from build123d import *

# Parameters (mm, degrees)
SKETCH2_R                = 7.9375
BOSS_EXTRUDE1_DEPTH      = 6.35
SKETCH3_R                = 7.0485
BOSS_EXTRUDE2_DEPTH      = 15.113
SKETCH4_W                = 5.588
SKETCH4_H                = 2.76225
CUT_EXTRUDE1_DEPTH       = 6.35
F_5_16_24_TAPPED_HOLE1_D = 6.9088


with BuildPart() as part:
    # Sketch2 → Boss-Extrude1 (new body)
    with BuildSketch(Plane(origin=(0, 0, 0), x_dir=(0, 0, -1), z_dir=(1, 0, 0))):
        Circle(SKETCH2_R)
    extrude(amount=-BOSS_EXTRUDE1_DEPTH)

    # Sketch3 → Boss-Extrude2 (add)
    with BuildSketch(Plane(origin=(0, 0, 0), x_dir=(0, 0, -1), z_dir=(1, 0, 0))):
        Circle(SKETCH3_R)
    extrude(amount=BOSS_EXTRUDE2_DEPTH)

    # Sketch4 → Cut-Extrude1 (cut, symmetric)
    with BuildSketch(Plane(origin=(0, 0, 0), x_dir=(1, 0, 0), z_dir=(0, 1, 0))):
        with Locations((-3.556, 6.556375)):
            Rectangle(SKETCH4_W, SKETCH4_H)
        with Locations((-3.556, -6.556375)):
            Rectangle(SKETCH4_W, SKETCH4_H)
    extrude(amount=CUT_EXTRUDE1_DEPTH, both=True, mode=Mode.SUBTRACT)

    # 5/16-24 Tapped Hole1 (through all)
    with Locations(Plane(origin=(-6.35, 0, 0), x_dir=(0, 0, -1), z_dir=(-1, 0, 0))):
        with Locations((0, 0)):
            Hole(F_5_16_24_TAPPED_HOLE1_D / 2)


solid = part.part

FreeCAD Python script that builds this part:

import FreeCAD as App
import Part
import Sketcher
Q = App.Units.Quantity

doc = App.newDocument("Part")
body = doc.addObject("PartDesign::Body", "Body")

sketch1 = doc.addObject("Sketcher::SketchObject", "Sketch")
body.addObject(sketch1)
sketch1.AttachmentSupport = (doc.YZ_Plane, [""])
sketch1.MapMode = "FlatFace"
sketch1.addGeometry(Part.Circle(App.Vector(0, 0, 0), App.Vector(0, 0, 1), 7.9375), False)
sketch1.addConstraint([
    Sketcher.Constraint("Coincident", 0, 3, -1, 1),
    Sketcher.Constraint("Diameter", 0, Q("0.625 in")),
])
pad1 = doc.addObject("PartDesign::Pad", "Pad")
body.addObject(pad1)
pad1.Profile = sketch1
pad1.Length = Q("0.25 in")
pad1.Reversed = True

sketch2 = doc.addObject("Sketcher::SketchObject", "Sketch001")
body.addObject(sketch2)
sketch2.AttachmentSupport = (doc.YZ_Plane, [""])
sketch2.MapMode = "FlatFace"
sketch2.addGeometry(Part.Circle(App.Vector(0, 0, 0), App.Vector(0, 0, 1), 7.0485), False)
sketch2.addConstraint([
    Sketcher.Constraint("Coincident", 0, 3, -1, 1),
    Sketcher.Constraint("Diameter", 0, Q("0.555 in")),
])
pad2 = doc.addObject("PartDesign::Pad", "Pad001")
body.addObject(pad2)
pad2.Profile = sketch2
pad2.Length = Q("0.595 in")

sketch3 = doc.addObject("Sketcher::SketchObject", "Sketch002")
body.addObject(sketch3)
sketch3.AttachmentSupport = (doc.XZ_Plane, [""])
sketch3.MapMode = "FlatFace"
sketch3.addGeometry([
    Part.LineSegment(App.Vector(-6.35, -7.9375, 0), App.Vector(-6.35, -5.17525, 0)),
    Part.LineSegment(App.Vector(-6.35, -5.17525, 0), App.Vector(-0.762, -5.17525, 0)),
    Part.LineSegment(App.Vector(-0.762, -5.17525, 0), App.Vector(-0.762, -7.9375, 0)),
    Part.LineSegment(App.Vector(-0.762, -7.9375, 0), App.Vector(-6.35, -7.9375, 0)),
    Part.LineSegment(App.Vector(-6.35, 5.17525, 0), App.Vector(-6.35, 7.9375, 0)),
    Part.LineSegment(App.Vector(-6.35, 7.9375, 0), App.Vector(-0.762, 7.9375, 0)),
    Part.LineSegment(App.Vector(-0.762, 7.9375, 0), App.Vector(-0.762, 5.17525, 0)),
    Part.LineSegment(App.Vector(-0.762, 5.17525, 0), App.Vector(-6.35, 5.17525, 0)),
], False)
sketch3.addConstraint([
    Sketcher.Constraint("Coincident", 0, 2, 1, 1),
    Sketcher.Constraint("Coincident", 1, 2, 2, 1),
    Sketcher.Constraint("Coincident", 2, 2, 3, 1),
    Sketcher.Constraint("Coincident", 3, 2, 0, 1),
    Sketcher.Constraint("Coincident", 4, 2, 5, 1),
    Sketcher.Constraint("Coincident", 5, 2, 6, 1),
    Sketcher.Constraint("Coincident", 6, 2, 7, 1),
    Sketcher.Constraint("Coincident", 7, 2, 4, 1),
    Sketcher.Constraint("Vertical", 0),
    Sketcher.Constraint("Horizontal", 1),
    Sketcher.Constraint("Vertical", 2),
    Sketcher.Constraint("Horizontal", 3),
    Sketcher.Constraint("Vertical", 4),
    Sketcher.Constraint("Horizontal", 5),
    Sketcher.Constraint("Vertical", 6),
    Sketcher.Constraint("Horizontal", 7),
    Sketcher.Constraint("Symmetric", 3, 2, 4, 2, -1),
    Sketcher.Constraint("Symmetric", 1, 2, 6, 2, -1),
    Sketcher.Constraint("DistanceX", 1, 1, 1, 2, Q("0.22 in")),
    Sketcher.Constraint("DistanceX", 0, 2, -1, 1, Q("0.25 in")),
    Sketcher.Constraint("DistanceY", 2, 2, -1, 1, Q("0.3125 in")),
    Sketcher.Constraint("DistanceY", 1, 2, 6, 2, Q("0.4075 in")),
])
pocket1 = doc.addObject("PartDesign::Pocket", "Pocket")
body.addObject(pocket1)
pocket1.Profile = sketch3
pocket1.Length = Q("0.5 in")
pocket1.Midplane = True

sketch4 = doc.addObject("Sketcher::SketchObject", "Sketch003")
body.addObject(sketch4)
sketch4.AttachmentSupport = (doc.YZ_Plane, [""])
sketch4.MapMode = "FlatFace"
sketch4.AttachmentOffset = App.Placement(App.Vector(0, 0, -0.25 * 25.4), App.Rotation())
sketch4.addGeometry(Part.Circle(App.Vector(0, 0, 0), App.Vector(0, 0, 1), 3.4544), False)
sketch4.addConstraint([
    Sketcher.Constraint("Coincident", 0, 3, -1, 1),
    Sketcher.Constraint("Diameter", 0, Q("0.272 in")),
])
doc.recompute()
hole = doc.addObject("PartDesign::Hole", "Hole")
body.addObject(hole)
hole.Profile = sketch4
hole.ThreadType = "None"
hole.Diameter = Q("0.272 in")
hole.DepthType = "ThroughAll"
hole.Reversed = True

doc.recompute()
